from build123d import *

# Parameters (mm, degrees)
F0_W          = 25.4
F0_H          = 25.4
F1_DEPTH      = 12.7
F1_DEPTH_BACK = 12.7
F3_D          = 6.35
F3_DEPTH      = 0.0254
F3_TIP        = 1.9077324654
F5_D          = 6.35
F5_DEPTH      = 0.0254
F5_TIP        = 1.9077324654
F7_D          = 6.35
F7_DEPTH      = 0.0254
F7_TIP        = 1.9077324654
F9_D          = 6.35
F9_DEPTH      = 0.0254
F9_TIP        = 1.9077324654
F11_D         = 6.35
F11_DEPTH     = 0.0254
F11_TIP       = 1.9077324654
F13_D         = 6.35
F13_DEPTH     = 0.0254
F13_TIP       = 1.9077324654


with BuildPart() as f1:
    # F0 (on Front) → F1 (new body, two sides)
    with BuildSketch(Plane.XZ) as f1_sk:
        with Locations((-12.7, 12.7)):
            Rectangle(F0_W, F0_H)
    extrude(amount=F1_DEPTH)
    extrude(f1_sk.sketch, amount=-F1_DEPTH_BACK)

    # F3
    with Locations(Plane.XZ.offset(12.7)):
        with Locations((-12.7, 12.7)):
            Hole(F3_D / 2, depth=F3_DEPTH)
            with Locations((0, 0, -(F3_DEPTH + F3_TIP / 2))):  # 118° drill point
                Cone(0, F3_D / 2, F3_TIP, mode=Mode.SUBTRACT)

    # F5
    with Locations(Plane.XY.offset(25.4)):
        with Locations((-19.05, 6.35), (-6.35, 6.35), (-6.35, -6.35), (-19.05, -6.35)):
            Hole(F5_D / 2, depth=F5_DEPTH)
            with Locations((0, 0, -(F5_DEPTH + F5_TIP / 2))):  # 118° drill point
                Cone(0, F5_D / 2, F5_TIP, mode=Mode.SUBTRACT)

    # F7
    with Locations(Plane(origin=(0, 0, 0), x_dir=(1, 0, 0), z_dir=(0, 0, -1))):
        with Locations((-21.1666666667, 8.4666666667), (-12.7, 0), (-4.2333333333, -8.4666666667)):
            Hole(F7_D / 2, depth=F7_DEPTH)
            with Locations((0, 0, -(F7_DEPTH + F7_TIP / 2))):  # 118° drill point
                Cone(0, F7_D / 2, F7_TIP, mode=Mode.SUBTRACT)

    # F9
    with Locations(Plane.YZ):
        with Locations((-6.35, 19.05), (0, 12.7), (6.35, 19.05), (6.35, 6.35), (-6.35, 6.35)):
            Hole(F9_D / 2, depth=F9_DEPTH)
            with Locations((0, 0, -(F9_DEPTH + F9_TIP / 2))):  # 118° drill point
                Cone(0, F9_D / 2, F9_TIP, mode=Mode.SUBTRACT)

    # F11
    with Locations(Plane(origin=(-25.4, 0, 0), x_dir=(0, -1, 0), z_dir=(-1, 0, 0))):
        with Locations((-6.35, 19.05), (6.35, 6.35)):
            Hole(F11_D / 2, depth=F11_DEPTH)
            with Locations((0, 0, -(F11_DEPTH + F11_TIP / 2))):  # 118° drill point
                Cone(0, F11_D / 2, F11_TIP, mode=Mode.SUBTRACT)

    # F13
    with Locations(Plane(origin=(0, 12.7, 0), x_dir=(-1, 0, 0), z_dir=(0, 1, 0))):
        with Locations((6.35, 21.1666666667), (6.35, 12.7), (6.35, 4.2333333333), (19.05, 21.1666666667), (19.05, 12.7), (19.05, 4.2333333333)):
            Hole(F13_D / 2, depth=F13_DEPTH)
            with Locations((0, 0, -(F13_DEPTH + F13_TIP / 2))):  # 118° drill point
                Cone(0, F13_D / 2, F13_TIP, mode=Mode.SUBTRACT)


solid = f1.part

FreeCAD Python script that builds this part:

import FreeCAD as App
import Part
import Sketcher

V = App.Vector
Q = App.Units.Quantity

doc = App.newDocument("Part")
body = doc.addObject("PartDesign::Body", "Body")

sketch1 = body.newObject("Sketcher::SketchObject", "Sketch")
sketch1.AttachmentSupport = (doc.getObject("XZ_Plane"), [""])
sketch1.MapMode = "FlatFace"
sketch1.addGeometry([
    Part.LineSegment(V(-25, 25, 0), V(-25, 0, 0)),
    Part.LineSegment(V(-25, 0, 0), V(0, 0, 0)),
    Part.LineSegment(V(0, 0, 0), V(0, 25, 0)),
    Part.LineSegment(V(0, 25, 0), V(-25, 25, 0)),
], False)
sketch1.addConstraint([
    Sketcher.Constraint("Coincident", 0, 2, 1, 1),
    Sketcher.Constraint("Coincident", 1, 2, 2, 1),
    Sketcher.Constraint("Coincident", 2, 2, 3, 1),
    Sketcher.Constraint("Coincident", 3, 2, 0, 1),
    Sketcher.Constraint("Vertical", 0),
    Sketcher.Constraint("Horizontal", 1),
    Sketcher.Constraint("Vertical", 2),
    Sketcher.Constraint("Horizontal", 3),
    Sketcher.Constraint("Coincident", 1, 2, -1, 1),
    Sketcher.Constraint("Equal", 3, 0),
    Sketcher.Constraint("DistanceX", 1, 1, 1, 2, Q("1 in")),
])
pad1 = body.newObject("PartDesign::Pad", "Pad")
pad1.Profile = sketch1
pad1.Type = "TwoLengths"
pad1.Length = Q("0.5 in")
pad1.Length2 = Q("0.5 in")

sketch2 = body.newObject("Sketcher::SketchObject", "Sketch001")
sketch2.AttachmentSupport = (doc.getObject("XZ_Plane"), [""])
sketch2.MapMode = "FlatFace"
sketch2.AttachmentOffset = App.Placement(V(0, 0, 0.5 * 25.4), App.Rotation())
sketch2.addGeometry(Part.Circle(V(-12.7, 12.7, 0), V(0, 0, 1), 3.2), False)
sketch2.addConstraint([
    Sketcher.Constraint("Diameter", 0, Q("0.25 in")),
    Sketcher.Constraint("DistanceX", 0, 3, -1, 1, Q("0.5 in")),
    Sketcher.Constraint("DistanceY", -1, 1, 0, 3, Q("0.5 in")),
])
doc.recompute()
hole = body.newObject("PartDesign::Hole", "Hole")
hole.Profile = sketch2
hole.ThreadType = "None"
hole.Diameter = Q("0.25 in")
hole.DepthType = "Dimension"
hole.Depth = Q("0.001 in")
hole.DrillPoint = "Angled"
hole.DrillPointAngle = 118

sketch3 = body.newObject("Sketcher::SketchObject", "Sketch002")
sketch3.AttachmentSupport = (doc.getObject("XY_Plane"), [""])
sketch3.MapMode = "FlatFace"
sketch3.AttachmentOffset = App.Placement(V(0, 0, 1 * 25.4), App.Rotation())
sketch3.addGeometry([
    Part.Circle(V(-19.1, 6.3, 0), V(0, 0, 1), 3.2),
    Part.Circle(V(-6.3, 6.3, 0), V(0, 0, 1), 3.2),
    Part.Circle(V(-6.3, -6.3, 0), V(0, 0, 1), 3.2),
    Part.Circle(V(-19.1, -6.3, 0), V(0, 0, 1), 3.2),
], False)
sketch3.addConstraint([
    Sketcher.Constraint("Equal", 0, 1),
    Sketcher.Constraint("Equal", 1, 2),
    Sketcher.Constraint("Equal", 2, 3),
    Sketcher.Constraint("Symmetric", 1, 3, 2, 3, -1),
    Sketcher.Constraint("Symmetric", 0, 3, 3, 3, -1),
    Sketcher.Constraint("Horizontal", 0, 3, 1, 3),
    Sketcher.Constraint("Diameter", 0, Q("0.25 in")),
    Sketcher.Constraint("DistanceX", 0, 3, 1, 3, Q("0.5 in")),
    Sketcher.Constraint("DistanceY", 2, 3, 1, 3, Q("0.5 in")),
    Sketcher.Constraint("DistanceX", 0, 3, -1, 1, Q("0.75 in")),
])
doc.recompute()
hole2 = body.newObject("PartDesign::Hole", "Hole001")
hole2.Profile = sketch3
hole2.ThreadType = "None"
hole2.Diameter = Q("0.25 in")
hole2.DepthType = "Dimension"
hole2.Depth = Q("0.001 in")
hole2.DrillPoint = "Angled"
hole2.DrillPointAngle = 118

sketch4 = body.newObject("Sketcher::SketchObject", "Sketch003")
sketch4.AttachmentSupport = (doc.getObject("XY_Plane"), [""])
sketch4.MapMode = "FlatFace"
sketch4.addGeometry([
    Part.Circle(V(-21.2, -8.5, 0), V(0, 0, 1), 3.2),
    Part.Circle(V(-12.7, 0, 0), V(0, 0, 1), 3.2),
    Part.Circle(V(-4.2, 8.5, 0), V(0, 0, 1), 3.2),
], False)
sketch4.addConstraint([
    Sketcher.Constraint("Equal", 0, 1),
    Sketcher.Constraint("Equal", 1, 2),
    Sketcher.Constraint("PointOnObject", 1, 3, -1),
    Sketcher.Constraint("Diameter", 0, Q("0.25 in")),
    Sketcher.Constraint("DistanceX", 1, 3, -1, 1, Q("0.5 in")),
    Sketcher.Constraint("DistanceX", 0, 3, -1, 1, 21.166667),
    Sketcher.Constraint("DistanceY", 0, 3, -1, 1, 8.466667),
    Sketcher.Constraint("DistanceX", 2, 3, -1, 1, 4.233333),
    Sketcher.Constraint("DistanceY", -1, 1, 2, 3, 8.466667),
])
doc.recompute()
hole3 = body.newObject("PartDesign::Hole", "Hole002")
hole3.Profile = sketch4
hole3.ThreadType = "None"
hole3.Diameter = Q("0.25 in")
hole3.DepthType = "Dimension"
hole3.Depth = Q("0.001 in")
hole3.DrillPoint = "Angled"
hole3.DrillPointAngle = 118
hole3.Reversed = True

sketch5 = body.newObject("Sketcher::SketchObject", "Sketch004")
sketch5.AttachmentSupport = (doc.getObject("YZ_Plane"), [""])
sketch5.MapMode = "FlatFace"
sketch5.addGeometry([
    Part.Circle(V(-6.3, 19.1, 0), V(0, 0, 1), 3.2),
    Part.Circle(V(0, 12.7, 0), V(0, 0, 1), 3.2),
    Part.Circle(V(6.3, 19.1, 0), V(0, 0, 1), 3.2),
    Part.Circle(V(6.3, 6.3, 0), V(0, 0, 1), 3.2),
    Part.Circle(V(-6.3, 6.3, 0), V(0, 0, 1), 3.2),
], False)
sketch5.addConstraint([
    Sketcher.Constraint("Equal", 0, 1),
    Sketcher.Constraint("Equal", 1, 2),
    Sketcher.Constraint("Equal", 2, 3),
    Sketcher.Constraint("Equal", 3, 4),
    Sketcher.Constraint("Symmetric", 0, 3, 2, 3, -2),
    Sketcher.Constraint("Symmetric", 3, 3, 4, 3, -2),
    Sketcher.Constraint("PointOnObject", 1, 3, -2),
    Sketcher.Constraint("Vertical", 2, 3, 3, 3),
    Sketcher.Constraint("Diameter", 0, Q("0.25 in")),
    Sketcher.Constraint("DistanceY", -1, 1, 1, 3, Q("0.5 in")),
    Sketcher.Constraint("DistanceX", 0, 3, 2, 3, Q("0.5 in")),
    Sketcher.Constraint("DistanceY", 3, 3, 2, 3, Q("0.5 in")),
    Sketcher.Constraint("DistanceY", -1, 1, 0, 3, Q("0.75 in")),
])
doc.recompute()
hole4 = body.newObject("PartDesign::Hole", "Hole003")
hole4.Profile = sketch5
hole4.ThreadType = "None"
hole4.Diameter = Q("0.25 in")
hole4.DepthType = "Dimension"
hole4.Depth = Q("0.001 in")
hole4.DrillPoint = "Angled"
hole4.DrillPointAngle = 118

sketch6 = body.newObject("Sketcher::SketchObject", "Sketch005")
sketch6.AttachmentSupport = (doc.getObject("YZ_Plane"), [""])
sketch6.MapMode = "FlatFace"
sketch6.AttachmentOffset = App.Placement(V(0, 0, -1 * 25.4), App.Rotation())
sketch6.addGeometry([
    Part.Circle(V(6.3, 19.1, 0), V(0, 0, 1), 3.2),
    Part.Circle(V(-6.3, 6.3, 0), V(0, 0, 1), 3.2),
], False)
sketch6.addConstraint([
    Sketcher.Constraint("Equal", 0, 1),
    Sketcher.Constraint("Diameter", 0, Q("0.25 in")),
    Sketcher.Constraint("DistanceX", 1, 3, 0, 3, Q("0.5 in")),
    Sketcher.Constraint("DistanceY", 1, 3, 0, 3, Q("0.5 in")),
    Sketcher.Constraint("DistanceX", -1, 1, 0, 3, Q("0.25 in")),
    Sketcher.Constraint("DistanceY", -1, 1, 0, 3, Q("0.75 in")),
])
doc.recompute()
hole5 = body.newObject("PartDesign::Hole", "Hole004")
hole5.Profile = sketch6
hole5.ThreadType = "None"
hole5.Diameter = Q("0.25 in")
hole5.DepthType = "Dimension"
hole5.Depth = Q("0.001 in")
hole5.DrillPoint = "Angled"
hole5.DrillPointAngle = 118
hole5.Reversed = True

sketch7 = body.newObject("Sketcher::SketchObject", "Sketch006")
sketch7.AttachmentSupport = (doc.getObject("XZ_Plane"), [""])
sketch7.MapMode = "FlatFace"
sketch7.AttachmentOffset = App.Placement(V(0, 0, -0.5 * 25.4), App.Rotation())
sketch7.addGeometry([
    Part.Circle(V(-6.3, 21.2, 0), V(0, 0, 1), 3.2),
    Part.Circle(V(-6.3, 12.7, 0), V(0, 0, 1), 3.2),
    Part.Circle(V(-6.3, 4.2, 0), V(0, 0, 1), 3.2),
    Part.Circle(V(-19.1, 21.2, 0), V(0, 0, 1), 3.2),
    Part.Circle(V(-19.1, 12.7, 0), V(0, 0, 1), 3.2),
    Part.Circle(V(-19.1, 4.2, 0), V(0, 0, 1), 3.2),
], False)
sketch7.addConstraint([
    Sketcher.Constraint("Equal", 0, 1),
    Sketcher.Constraint("Equal", 1, 2),
    Sketcher.Constraint("Equal", 2, 3),
    Sketcher.Constraint("Equal", 3, 4),
    Sketcher.Constraint("Equal", 4, 5),
    Sketcher.Constraint("Horizontal", 0, 3, 3, 3),
    Sketcher.Constraint("Horizontal", 1, 3, 4, 3),
    Sketcher.Constraint("Horizontal", 2, 3, 5, 3),
    Sketcher.Constraint("Vertical", 0, 3, 1, 3),
    Sketcher.Constraint("Vertical", 1, 3, 2, 3),
    Sketcher.Constraint("Vertical", 3, 3, 4, 3),
    Sketcher.Constraint("Vertical", 4, 3, 5, 3),
    Sketcher.Constraint("Diameter", 0, Q("0.25 in")),
    Sketcher.Constraint("DistanceY", -1, 1, 1, 3, Q("0.5 in")),
    Sketcher.Constraint("DistanceX", 3, 3, 0, 3, Q("0.5 in")),
    Sketcher.Constraint("DistanceX", 0, 3, -1, 1, Q("0.25 in")),
    Sketcher.Constraint("DistanceY", -1, 1, 0, 3, 21.166667),
    Sketcher.Constraint("DistanceY", -1, 1, 2, 3, 4.233333),
])
doc.recompute()
hole6 = body.newObject("PartDesign::Hole", "Hole005")
hole6.Profile = sketch7
hole6.ThreadType = "None"
hole6.Diameter = Q("0.25 in")
hole6.DepthType = "Dimension"
hole6.Depth = Q("0.001 in")
hole6.DrillPoint = "Angled"
hole6.DrillPointAngle = 118
hole6.Reversed = True

doc.recompute()
